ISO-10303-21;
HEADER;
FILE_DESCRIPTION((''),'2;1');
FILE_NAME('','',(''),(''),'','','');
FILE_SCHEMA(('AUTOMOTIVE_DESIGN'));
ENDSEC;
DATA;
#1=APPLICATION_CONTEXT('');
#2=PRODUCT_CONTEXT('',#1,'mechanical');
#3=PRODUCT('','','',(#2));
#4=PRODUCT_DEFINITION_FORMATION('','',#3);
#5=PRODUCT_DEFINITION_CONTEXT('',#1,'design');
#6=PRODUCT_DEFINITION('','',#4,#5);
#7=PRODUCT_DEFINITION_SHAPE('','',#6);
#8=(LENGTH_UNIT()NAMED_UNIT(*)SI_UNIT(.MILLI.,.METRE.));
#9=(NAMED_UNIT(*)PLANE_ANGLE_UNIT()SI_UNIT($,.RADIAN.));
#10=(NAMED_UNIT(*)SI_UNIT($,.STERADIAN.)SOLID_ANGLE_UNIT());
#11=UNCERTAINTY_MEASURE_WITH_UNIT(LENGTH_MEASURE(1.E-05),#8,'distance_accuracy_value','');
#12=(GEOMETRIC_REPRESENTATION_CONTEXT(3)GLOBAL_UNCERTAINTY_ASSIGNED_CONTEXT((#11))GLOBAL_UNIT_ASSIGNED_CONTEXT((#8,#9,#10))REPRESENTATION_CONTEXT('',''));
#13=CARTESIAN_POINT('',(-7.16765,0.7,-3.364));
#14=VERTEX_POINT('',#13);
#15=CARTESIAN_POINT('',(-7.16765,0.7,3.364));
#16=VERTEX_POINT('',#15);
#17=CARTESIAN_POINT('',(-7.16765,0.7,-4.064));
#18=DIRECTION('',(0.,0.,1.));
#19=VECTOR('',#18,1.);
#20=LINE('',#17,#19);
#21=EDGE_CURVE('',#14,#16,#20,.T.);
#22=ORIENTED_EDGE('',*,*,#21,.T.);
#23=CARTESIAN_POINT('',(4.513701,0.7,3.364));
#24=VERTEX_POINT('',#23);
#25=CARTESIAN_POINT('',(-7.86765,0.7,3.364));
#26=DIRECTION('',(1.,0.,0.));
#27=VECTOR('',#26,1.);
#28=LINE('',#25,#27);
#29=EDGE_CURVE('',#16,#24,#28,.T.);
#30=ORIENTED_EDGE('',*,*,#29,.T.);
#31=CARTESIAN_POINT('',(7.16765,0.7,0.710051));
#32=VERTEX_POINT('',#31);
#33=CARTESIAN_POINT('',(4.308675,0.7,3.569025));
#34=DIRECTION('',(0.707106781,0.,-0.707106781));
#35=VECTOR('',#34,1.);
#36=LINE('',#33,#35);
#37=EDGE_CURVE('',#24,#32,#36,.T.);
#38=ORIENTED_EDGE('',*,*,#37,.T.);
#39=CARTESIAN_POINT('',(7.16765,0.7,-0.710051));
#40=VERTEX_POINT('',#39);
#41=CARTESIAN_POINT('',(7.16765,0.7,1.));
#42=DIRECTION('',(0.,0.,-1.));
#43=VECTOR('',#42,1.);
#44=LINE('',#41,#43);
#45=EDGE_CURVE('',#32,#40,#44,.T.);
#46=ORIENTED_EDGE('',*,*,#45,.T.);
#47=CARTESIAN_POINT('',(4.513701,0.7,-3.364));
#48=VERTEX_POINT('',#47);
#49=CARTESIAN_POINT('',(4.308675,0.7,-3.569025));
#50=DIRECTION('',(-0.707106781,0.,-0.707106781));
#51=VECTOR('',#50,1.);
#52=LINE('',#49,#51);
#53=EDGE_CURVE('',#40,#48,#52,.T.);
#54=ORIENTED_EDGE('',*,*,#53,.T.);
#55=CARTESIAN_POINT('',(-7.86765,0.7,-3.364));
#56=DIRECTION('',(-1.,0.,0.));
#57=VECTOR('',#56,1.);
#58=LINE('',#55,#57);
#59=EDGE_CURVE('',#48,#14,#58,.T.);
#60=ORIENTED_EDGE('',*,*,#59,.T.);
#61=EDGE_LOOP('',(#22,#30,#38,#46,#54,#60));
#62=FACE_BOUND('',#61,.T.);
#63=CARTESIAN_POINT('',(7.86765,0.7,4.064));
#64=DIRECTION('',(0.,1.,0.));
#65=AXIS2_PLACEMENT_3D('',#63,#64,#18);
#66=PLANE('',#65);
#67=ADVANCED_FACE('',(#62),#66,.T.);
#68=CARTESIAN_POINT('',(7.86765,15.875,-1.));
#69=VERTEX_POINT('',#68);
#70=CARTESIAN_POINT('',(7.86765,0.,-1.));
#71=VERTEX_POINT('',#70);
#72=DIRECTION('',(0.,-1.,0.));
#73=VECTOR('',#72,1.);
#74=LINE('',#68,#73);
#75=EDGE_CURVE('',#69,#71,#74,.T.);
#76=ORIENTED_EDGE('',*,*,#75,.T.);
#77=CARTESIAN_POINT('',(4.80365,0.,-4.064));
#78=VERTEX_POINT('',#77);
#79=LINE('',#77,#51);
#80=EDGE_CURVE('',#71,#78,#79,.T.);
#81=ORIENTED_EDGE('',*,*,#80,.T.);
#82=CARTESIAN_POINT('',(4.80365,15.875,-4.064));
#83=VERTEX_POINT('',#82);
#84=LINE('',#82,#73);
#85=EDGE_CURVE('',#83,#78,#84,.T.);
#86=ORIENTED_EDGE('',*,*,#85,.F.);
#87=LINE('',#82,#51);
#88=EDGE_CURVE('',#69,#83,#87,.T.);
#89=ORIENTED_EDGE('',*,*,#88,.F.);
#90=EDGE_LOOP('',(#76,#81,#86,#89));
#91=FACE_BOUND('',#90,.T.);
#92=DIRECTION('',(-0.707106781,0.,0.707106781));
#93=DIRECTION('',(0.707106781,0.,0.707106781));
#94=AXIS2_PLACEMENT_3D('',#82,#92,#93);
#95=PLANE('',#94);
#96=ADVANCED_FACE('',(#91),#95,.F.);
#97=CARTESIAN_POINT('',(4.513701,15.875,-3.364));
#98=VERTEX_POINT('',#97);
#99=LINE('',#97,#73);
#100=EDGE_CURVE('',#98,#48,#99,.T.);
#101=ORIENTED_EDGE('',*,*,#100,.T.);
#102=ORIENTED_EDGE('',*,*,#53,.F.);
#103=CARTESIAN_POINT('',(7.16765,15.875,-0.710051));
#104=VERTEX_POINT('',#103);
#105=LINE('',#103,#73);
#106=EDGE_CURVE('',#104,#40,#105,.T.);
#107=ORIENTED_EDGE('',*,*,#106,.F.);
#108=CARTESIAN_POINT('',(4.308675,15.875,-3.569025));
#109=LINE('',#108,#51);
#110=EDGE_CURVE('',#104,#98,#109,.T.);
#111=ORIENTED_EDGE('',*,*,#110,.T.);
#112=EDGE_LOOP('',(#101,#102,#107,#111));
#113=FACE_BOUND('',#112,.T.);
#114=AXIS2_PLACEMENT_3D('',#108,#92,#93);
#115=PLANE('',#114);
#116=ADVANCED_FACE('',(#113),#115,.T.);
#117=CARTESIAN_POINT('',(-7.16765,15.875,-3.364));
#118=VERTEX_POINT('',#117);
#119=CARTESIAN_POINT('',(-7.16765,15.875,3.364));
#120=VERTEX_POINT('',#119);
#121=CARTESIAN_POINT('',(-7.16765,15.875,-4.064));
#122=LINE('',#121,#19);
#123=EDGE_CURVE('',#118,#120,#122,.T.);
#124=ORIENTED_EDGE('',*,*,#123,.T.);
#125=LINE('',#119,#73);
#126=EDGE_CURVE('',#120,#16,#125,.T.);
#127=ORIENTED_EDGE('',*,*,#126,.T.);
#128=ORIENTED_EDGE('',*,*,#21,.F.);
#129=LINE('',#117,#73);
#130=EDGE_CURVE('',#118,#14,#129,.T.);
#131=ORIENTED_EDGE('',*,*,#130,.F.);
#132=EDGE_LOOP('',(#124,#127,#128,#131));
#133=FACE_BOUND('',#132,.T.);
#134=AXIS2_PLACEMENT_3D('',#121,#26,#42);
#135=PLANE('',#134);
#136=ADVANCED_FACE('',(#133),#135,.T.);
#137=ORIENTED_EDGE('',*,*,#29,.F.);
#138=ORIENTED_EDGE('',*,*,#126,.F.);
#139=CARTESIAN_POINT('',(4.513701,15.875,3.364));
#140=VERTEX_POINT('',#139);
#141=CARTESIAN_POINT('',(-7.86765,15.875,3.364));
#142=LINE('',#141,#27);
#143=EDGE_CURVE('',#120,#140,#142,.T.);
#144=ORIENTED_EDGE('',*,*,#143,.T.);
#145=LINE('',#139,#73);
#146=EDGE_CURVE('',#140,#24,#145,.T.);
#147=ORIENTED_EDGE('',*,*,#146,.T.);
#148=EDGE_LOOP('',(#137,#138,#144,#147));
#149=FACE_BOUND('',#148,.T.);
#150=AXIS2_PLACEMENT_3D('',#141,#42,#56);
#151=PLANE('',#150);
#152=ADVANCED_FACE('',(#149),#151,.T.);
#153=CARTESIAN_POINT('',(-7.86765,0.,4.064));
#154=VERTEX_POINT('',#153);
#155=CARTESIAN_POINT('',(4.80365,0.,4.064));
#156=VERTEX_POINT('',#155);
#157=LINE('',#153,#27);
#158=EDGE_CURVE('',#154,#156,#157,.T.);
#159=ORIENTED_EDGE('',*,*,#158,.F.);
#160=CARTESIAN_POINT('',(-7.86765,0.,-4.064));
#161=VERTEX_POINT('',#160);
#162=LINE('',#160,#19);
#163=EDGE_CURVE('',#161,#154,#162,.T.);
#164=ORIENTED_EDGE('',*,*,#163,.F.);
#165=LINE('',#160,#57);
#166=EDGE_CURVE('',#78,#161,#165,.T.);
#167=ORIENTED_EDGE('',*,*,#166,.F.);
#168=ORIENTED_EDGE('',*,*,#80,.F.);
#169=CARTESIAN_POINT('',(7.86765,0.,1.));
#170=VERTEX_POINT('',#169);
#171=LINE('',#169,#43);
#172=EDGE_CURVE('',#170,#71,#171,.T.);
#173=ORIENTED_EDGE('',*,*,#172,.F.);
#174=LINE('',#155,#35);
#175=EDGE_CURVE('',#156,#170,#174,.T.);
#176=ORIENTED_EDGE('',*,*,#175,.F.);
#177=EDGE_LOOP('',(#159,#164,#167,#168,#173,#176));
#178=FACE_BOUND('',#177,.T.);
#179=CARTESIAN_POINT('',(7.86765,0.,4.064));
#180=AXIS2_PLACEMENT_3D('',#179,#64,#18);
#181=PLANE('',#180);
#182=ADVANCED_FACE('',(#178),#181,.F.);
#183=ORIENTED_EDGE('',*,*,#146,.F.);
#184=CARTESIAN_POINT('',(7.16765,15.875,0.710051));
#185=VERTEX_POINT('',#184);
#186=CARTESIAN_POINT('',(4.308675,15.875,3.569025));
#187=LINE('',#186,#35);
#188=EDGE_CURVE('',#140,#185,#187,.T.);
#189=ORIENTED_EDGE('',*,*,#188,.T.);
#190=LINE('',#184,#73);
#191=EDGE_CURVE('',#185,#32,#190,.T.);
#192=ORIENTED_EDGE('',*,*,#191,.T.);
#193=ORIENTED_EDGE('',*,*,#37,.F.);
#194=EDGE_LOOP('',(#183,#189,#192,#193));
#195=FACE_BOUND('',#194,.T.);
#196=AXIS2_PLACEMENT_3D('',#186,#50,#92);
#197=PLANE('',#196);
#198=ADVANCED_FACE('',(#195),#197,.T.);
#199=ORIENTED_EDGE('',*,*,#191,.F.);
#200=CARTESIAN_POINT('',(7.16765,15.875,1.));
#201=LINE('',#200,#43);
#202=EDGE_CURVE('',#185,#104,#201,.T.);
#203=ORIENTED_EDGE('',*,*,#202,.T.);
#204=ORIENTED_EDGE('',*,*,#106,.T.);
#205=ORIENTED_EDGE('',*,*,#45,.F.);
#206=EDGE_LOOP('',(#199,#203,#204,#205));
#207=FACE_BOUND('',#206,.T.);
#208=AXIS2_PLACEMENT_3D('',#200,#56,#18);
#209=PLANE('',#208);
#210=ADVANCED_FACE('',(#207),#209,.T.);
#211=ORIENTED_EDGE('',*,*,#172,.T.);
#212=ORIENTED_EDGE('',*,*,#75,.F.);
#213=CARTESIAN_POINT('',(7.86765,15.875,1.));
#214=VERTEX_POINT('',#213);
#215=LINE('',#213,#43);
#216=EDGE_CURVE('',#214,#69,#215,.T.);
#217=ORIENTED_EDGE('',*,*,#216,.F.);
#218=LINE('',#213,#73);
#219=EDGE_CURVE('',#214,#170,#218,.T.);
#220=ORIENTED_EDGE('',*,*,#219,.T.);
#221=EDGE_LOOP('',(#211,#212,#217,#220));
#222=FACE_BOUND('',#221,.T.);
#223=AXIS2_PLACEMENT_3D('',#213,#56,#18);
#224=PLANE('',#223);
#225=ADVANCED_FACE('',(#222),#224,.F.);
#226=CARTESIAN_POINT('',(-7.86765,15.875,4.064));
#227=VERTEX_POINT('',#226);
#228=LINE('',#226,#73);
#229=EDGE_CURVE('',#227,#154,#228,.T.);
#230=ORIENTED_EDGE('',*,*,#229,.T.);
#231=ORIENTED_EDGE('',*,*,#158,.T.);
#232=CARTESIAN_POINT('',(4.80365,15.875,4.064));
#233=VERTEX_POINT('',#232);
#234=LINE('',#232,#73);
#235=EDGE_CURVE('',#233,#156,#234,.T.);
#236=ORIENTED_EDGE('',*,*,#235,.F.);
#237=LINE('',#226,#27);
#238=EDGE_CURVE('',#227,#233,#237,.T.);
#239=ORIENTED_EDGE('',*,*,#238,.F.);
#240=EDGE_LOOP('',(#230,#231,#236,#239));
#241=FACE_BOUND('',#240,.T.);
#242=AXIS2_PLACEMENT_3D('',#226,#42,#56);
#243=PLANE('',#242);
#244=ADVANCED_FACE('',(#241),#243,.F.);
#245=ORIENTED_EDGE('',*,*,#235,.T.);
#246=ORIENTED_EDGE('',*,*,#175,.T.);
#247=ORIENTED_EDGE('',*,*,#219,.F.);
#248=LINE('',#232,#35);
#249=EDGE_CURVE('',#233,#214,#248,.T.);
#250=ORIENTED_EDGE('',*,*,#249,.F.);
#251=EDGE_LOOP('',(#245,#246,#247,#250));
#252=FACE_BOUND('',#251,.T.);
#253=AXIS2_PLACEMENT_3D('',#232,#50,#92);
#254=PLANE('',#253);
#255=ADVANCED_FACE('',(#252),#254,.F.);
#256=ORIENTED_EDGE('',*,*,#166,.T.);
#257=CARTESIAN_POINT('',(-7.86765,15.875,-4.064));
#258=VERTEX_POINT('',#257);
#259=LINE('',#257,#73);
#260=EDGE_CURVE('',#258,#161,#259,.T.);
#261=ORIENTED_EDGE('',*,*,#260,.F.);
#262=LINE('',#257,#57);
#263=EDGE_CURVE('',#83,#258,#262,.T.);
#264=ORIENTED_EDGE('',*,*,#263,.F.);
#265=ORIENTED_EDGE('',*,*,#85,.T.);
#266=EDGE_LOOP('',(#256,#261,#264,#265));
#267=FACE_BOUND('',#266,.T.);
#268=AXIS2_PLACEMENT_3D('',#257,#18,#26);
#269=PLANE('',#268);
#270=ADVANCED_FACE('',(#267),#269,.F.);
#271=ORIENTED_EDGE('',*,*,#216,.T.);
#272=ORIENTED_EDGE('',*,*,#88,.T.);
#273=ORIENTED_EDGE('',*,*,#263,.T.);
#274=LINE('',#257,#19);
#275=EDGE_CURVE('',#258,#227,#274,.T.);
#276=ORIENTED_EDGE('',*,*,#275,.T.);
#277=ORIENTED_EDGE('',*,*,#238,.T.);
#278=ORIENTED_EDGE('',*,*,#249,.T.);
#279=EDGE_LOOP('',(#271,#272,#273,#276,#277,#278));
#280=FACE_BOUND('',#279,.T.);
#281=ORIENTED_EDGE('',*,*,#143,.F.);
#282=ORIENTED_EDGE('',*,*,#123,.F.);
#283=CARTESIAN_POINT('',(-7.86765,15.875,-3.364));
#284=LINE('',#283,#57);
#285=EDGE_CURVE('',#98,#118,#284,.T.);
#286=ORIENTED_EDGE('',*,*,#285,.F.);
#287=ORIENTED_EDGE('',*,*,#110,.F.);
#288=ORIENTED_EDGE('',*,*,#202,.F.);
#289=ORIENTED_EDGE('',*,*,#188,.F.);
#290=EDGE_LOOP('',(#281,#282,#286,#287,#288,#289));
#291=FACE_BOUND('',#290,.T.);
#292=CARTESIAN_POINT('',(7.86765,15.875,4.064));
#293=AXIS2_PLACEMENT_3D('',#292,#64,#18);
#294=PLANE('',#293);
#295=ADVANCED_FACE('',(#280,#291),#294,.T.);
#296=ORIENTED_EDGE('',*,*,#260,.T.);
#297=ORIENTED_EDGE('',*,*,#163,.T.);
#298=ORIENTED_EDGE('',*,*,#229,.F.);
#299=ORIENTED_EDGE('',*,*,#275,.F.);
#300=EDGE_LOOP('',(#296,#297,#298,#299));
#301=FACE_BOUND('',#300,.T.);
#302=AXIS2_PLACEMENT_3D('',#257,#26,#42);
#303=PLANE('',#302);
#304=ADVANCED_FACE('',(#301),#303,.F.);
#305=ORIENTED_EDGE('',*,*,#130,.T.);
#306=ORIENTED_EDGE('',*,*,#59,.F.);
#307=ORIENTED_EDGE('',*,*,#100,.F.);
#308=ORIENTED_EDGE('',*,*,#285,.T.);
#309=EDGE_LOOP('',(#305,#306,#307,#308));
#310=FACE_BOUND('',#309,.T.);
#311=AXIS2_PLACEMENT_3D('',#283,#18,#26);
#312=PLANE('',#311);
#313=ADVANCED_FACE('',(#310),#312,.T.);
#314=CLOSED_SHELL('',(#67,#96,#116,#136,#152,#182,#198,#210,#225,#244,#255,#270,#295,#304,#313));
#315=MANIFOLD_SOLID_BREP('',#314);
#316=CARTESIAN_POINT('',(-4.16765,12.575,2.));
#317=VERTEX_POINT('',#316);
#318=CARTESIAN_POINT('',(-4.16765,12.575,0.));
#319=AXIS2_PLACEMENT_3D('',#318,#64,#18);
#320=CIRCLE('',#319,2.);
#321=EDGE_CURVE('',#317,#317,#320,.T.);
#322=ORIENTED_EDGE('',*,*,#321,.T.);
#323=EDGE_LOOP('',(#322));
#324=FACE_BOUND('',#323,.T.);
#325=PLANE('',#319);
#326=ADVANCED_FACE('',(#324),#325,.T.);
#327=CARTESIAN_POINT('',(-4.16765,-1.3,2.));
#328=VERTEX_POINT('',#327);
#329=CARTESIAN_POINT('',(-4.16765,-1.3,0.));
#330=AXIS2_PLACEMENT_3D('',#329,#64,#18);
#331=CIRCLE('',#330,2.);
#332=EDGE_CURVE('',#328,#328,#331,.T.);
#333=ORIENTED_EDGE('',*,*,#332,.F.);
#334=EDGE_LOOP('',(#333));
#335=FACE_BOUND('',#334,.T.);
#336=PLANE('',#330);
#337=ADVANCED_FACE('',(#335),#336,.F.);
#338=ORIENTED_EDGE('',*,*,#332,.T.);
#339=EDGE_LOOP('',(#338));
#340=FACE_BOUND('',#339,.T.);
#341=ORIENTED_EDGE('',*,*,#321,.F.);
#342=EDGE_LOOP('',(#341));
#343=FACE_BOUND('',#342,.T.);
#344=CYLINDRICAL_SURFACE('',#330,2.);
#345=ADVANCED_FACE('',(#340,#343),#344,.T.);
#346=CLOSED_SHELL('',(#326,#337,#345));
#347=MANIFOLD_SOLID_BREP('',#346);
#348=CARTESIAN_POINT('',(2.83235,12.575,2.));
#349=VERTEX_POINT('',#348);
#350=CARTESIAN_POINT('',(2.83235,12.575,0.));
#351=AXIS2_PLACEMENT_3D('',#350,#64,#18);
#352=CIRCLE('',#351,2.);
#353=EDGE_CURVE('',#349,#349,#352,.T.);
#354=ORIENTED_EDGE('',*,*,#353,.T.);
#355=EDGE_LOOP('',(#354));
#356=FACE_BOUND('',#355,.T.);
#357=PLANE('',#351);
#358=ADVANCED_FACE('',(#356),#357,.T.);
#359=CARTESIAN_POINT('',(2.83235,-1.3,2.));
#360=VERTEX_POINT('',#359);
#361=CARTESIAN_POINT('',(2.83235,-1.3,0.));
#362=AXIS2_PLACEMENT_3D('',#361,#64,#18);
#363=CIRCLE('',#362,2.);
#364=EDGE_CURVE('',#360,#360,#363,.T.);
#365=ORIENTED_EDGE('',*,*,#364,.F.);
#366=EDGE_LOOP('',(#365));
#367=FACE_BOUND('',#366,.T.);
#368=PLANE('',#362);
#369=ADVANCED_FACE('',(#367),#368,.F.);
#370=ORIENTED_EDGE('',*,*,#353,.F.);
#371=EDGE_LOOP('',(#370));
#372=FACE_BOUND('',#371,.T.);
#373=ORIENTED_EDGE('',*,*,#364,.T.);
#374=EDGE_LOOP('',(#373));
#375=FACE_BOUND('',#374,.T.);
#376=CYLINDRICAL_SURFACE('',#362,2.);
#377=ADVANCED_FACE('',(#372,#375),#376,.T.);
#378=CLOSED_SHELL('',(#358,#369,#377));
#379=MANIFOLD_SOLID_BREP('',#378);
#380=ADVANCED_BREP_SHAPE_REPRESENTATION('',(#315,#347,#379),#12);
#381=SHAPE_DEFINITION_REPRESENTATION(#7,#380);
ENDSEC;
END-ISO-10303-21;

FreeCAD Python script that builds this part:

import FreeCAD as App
import Part
import Sketcher

V = App.Vector


def faces_at(feature, points):
    """Names of the faces that lie closest to the given points."""
    faces = feature.Shape.Faces
    near = lambda p: min(range(len(faces)), key=lambda i: faces[i].distToShape(Part.Vertex(*p))[0])
    return sorted({f"Face{near(p) + 1}" for p in points})

doc = App.newDocument("Part")
params = doc.addObject("Spreadsheet::Sheet", "Params")
for row, (alias, value) in enumerate([
    ("sketch1_height", "2 mm"),
    ("pad1_length", "15.875 mm"),
    ("thickness_wall", "0.7 mm"),
    ("sketch2_diameter", "4 mm"),
    ("pad2_length", "11.875 mm"),
    ("pad2_length2", "2 mm"),
    ("sketch3_diameter", "4 mm"),
    ("pad3_length", "11.875 mm"),
    ("pad3_length2", "2 mm"),
], start=1):
    params.set(f"A{row}", alias)
    params.set(f"B{row}", "=" + value)
    params.setAlias(f"B{row}", alias)

body = doc.addObject("PartDesign::Body", "Body")

# Sketch on XZ plane
sketch1 = body.newObject("Sketcher::SketchObject", "Sketch")
sketch1.AttachmentSupport = (doc.getObject("XZ_Plane"), [""])
sketch1.MapMode = "FlatFace"
sketch1.addGeometry([
    Part.LineSegment(V(-7.86765, -4.064, 0), V(-7.86765, 4.064, 0)),  # 0
    Part.LineSegment(V(-7.86765, 4.064, 0), V(4.80365, 4.064, 0)),  # 1
    Part.LineSegment(V(4.80365, 4.064, 0), V(7.86765, 1, 0)),  # 2
    Part.LineSegment(V(7.86765, 1, 0), V(7.86765, -1, 0)),  # 3
    Part.LineSegment(V(7.86765, -1, 0), V(4.80365, -4.064, 0)),  # 4
    Part.LineSegment(V(4.80365, -4.064, 0), V(-7.86765, -4.064, 0)),  # 5
], False)
sketch1.addConstraint([
    Sketcher.Constraint("Coincident", 0, 2, 1, 1),
    Sketcher.Constraint("Coincident", 1, 2, 2, 1),
    Sketcher.Constraint("Coincident", 2, 2, 3, 1),
    Sketcher.Constraint("Coincident", 3, 2, 4, 1),
    Sketcher.Constraint("Coincident", 4, 2, 5, 1),
    Sketcher.Constraint("Coincident", 5, 2, 0, 1),
    Sketcher.Constraint("Vertical", 0),
    Sketcher.Constraint("Horizontal", 1),
    Sketcher.Constraint("Vertical", 3),
    Sketcher.Constraint("Horizontal", 5),
    Sketcher.Constraint("Symmetric", 1, 2, 4, 2, -1),
    Sketcher.Constraint("Perpendicular", 2, 4),
    Sketcher.Constraint("Equal", 2, 4),
    Sketcher.Constraint("DistanceY", 3, 2, 3, 1, 2.0),
    Sketcher.Constraint("DistanceY", 0, 1, 0, 2, 8.128),
    Sketcher.Constraint("DistanceX", 1, 1, 1, 2, 12.6713),
    Sketcher.Constraint("DistanceX", 0, 2, -1, 1, 7.86765),
])
sketch1.setExpression("Constraints[13]", "Params.sketch1_height")
pad1 = body.newObject("PartDesign::Pad", "Pad")
pad1.Profile = sketch1
pad1.setExpression("Length", "Params.pad1_length")
pad1.Reversed = True
doc.recompute()

thickness = body.newObject("PartDesign::Thickness", "Thickness")
thickness.Base = (pad1, faces_at(pad1, [(0, 15.875, 0)]))
thickness.setExpression("Value", "Params.thickness_wall")
thickness.Reversed = True
thickness.Join = "Intersection"
body2 = doc.addObject("PartDesign::Body", "Body001")

# Sketch on XZ plane
sketch2 = body2.newObject("Sketcher::SketchObject", "Sketch001")
sketch2.AttachmentSupport = (doc.getObject("XZ_Plane001"), [""])
sketch2.MapMode = "FlatFace"
sketch2.AttachmentOffset = App.Placement(V(0, 0, -0.7), App.Rotation())
sketch2.addGeometry(Part.Circle(V(-4.16765, 0, 0), V(0, 0, 1), 2), False)
sketch2.addConstraint([
    Sketcher.Constraint("PointOnObject", 0, 3, -1),
    Sketcher.Constraint("Diameter", 0, 4.0),
    Sketcher.Constraint("DistanceX", 0, 3, -1, 1, 4.16765),
])
sketch2.setExpression("Constraints[1]", "Params.sketch2_diameter")
pad2 = body2.newObject("PartDesign::Pad", "Pad001")
pad2.Profile = sketch2
pad2.Type = "TwoLengths"
pad2.setExpression("Length", "Params.pad2_length")
pad2.setExpression("Length2", "Params.pad2_length2")
pad2.Reversed = True
body3 = doc.addObject("PartDesign::Body", "Body002")

# Sketch on XZ plane
sketch3 = body3.newObject("Sketcher::SketchObject", "Sketch002")
sketch3.AttachmentSupport = (doc.getObject("XZ_Plane002"), [""])
sketch3.MapMode = "FlatFace"
sketch3.AttachmentOffset = App.Placement(V(0, 0, -0.7), App.Rotation())
sketch3.addGeometry(Part.Circle(V(2.83235, 0, 0), V(0, 0, 1), 2), False)
sketch3.addConstraint([
    Sketcher.Constraint("PointOnObject", 0, 3, -1),
    Sketcher.Constraint("Diameter", 0, 4.0),
    Sketcher.Constraint("DistanceX", -1, 1, 0, 3, 2.83235),
])
sketch3.setExpression("Constraints[1]", "Params.sketch3_diameter")
pad3 = body3.newObject("PartDesign::Pad", "Pad002")
pad3.Profile = sketch3
pad3.Type = "TwoLengths"
pad3.setExpression("Length", "Params.pad3_length")
pad3.setExpression("Length2", "Params.pad3_length2")
pad3.Reversed = True

doc.recompute()
